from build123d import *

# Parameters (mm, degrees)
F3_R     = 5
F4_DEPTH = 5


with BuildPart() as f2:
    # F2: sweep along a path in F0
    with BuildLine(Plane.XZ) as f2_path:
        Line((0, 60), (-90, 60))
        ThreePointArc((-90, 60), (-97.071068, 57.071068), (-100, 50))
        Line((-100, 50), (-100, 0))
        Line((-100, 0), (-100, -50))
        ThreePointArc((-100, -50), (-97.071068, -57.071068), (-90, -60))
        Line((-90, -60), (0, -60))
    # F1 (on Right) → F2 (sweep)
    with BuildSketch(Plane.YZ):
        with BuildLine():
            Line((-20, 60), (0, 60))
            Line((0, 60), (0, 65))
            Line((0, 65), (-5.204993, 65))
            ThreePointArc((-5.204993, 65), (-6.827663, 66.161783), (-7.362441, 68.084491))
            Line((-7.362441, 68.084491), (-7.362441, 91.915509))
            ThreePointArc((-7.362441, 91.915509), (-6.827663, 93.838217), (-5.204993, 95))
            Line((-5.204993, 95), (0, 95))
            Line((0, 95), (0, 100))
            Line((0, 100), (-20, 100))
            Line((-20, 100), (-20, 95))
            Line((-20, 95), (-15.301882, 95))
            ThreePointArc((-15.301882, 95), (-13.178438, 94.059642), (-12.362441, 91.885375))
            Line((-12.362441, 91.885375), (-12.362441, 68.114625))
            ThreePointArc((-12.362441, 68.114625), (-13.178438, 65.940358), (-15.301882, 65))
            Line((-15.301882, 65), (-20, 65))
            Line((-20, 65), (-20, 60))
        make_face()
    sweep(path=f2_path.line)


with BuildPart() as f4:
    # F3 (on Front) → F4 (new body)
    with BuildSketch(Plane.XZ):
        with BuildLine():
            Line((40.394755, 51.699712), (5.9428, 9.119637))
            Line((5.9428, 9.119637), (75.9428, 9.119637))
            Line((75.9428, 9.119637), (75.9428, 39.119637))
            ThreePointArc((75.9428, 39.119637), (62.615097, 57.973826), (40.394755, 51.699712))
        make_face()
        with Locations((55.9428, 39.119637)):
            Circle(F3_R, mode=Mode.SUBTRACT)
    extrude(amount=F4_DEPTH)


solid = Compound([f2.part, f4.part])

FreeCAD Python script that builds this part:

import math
import FreeCAD as App
import Part
import Sketcher
from FreeCAD import Vector

doc = App.newDocument("Part")
params = doc.addObject("Spreadsheet::Sheet", "Params")
for row, (alias, value) in enumerate([
    ("sketch1_radius", "3.000002 mm"),
    ("sketch1_radius2", "3.000002 mm"),
    ("sketch1_radius3", "3.000001 mm"),
    ("sketch1_radius4", "3.000001 mm"),
    ("sketch1_width", "20 mm"),
    ("sketch2_radius", "9.999999 mm"),
    ("sketch2_width", "90 mm"),
    ("sketch2_height", "100 mm"),
    ("sketch3_diameter", "10 mm"),
    ("sketch3_radius", "20 mm"),
    ("sketch3_width", "70 mm"),
    ("sketch3_height", "30 mm"),
    ("pad1_length", "5 mm"),
], start=1):
    params.set(f"A{row}", alias)
    params.set(f"B{row}", "=" + value)
    params.setAlias(f"B{row}", alias)

body = doc.addObject("PartDesign::Body", "Body")

# Sketch on YZ plane
sketch1 = body.newObject("Sketcher::SketchObject", "Sketch")
sketch1.AttachmentSupport = (doc.getObject("YZ_Plane"), [""])
sketch1.MapMode = "FlatFace"
sketch1.addGeometry([
    Part.LineSegment(Vector(-20, 60, 0), Vector(0, 60, 0)),  # 0
    Part.LineSegment(Vector(0, 60, 0), Vector(0, 65, 0)),  # 1
    Part.LineSegment(Vector(0, 65, 0), Vector(-5.204993, 65, 0)),  # 2
    Part.ArcOfCircle(Part.Circle(Vector(-4.369331, 67.881263, 0), Vector(0, 0, 1), 3.000002), math.radians(176.115667), math.radians(253.826083)),  # 3
    Part.LineSegment(Vector(-7.362441, 68.084491, 0), Vector(-7.362441, 91.915509, 0)),  # 4
    Part.ArcOfCircle(Part.Circle(Vector(-4.369331, 92.118737, 0), Vector(0, 0, 1), 3.000002), math.radians(106.173917), math.radians(183.884333)),  # 5
    Part.LineSegment(Vector(-5.204993, 95, 0), Vector(0, 95, 0)),  # 6
    Part.LineSegment(Vector(0, 95, 0), Vector(0, 100, 0)),  # 7
    Part.LineSegment(Vector(0, 100, 0), Vector(-20, 100, 0)),  # 8
    Part.LineSegment(Vector(-20, 100, 0), Vector(-20, 95, 0)),  # 9
    Part.LineSegment(Vector(-20, 95, 0), Vector(-15.301882, 95, 0)),  # 10
    Part.ArcOfCircle(Part.Circle(Vector(-15.360229, 92.000567, 0), Vector(0, 0, 1), 3.000001), math.radians(-2.200542), math.radians(88.885579)),  # 11
    Part.LineSegment(Vector(-12.362441, 91.885375, 0), Vector(-12.362441, 68.114625, 0)),  # 12
    Part.ArcOfCircle(Part.Circle(Vector(-15.360229, 67.999433, 0), Vector(0, 0, 1), 3.000001), math.radians(-88.885579), math.radians(2.200542)),  # 13
    Part.LineSegment(Vector(-15.301882, 65, 0), Vector(-20, 65, 0)),  # 14
    Part.LineSegment(Vector(-20, 65, 0), Vector(-20, 60, 0)),  # 15
], False)
sketch1.addConstraint([
    Sketcher.Constraint("Coincident", 0, 2, 1, 1),
    Sketcher.Constraint("Coincident", 1, 2, 2, 1),
    Sketcher.Constraint("Coincident", 2, 2, 3, 2),
    Sketcher.Constraint("Coincident", 3, 1, 4, 1),
    Sketcher.Constraint("Coincident", 4, 2, 5, 2),
    Sketcher.Constraint("Coincident", 5, 1, 6, 1),
    Sketcher.Constraint("Coincident", 6, 2, 7, 1),
    Sketcher.Constraint("Coincident", 7, 2, 8, 1),
    Sketcher.Constraint("Coincident", 8, 2, 9, 1),
    Sketcher.Constraint("Coincident", 9, 2, 10, 1),
    Sketcher.Constraint("Coincident", 10, 2, 11, 2),
    Sketcher.Constraint("Coincident", 11, 1, 12, 1),
    Sketcher.Constraint("Coincident", 12, 2, 13, 2),
    Sketcher.Constraint("Coincident", 13, 1, 14, 1),
    Sketcher.Constraint("Coincident", 14, 2, 15, 1),
    Sketcher.Constraint("Coincident", 15, 2, 0, 1),
    Sketcher.Constraint("Horizontal", 0),
    Sketcher.Constraint("Vertical", 1),
    Sketcher.Constraint("Horizontal", 2),
    Sketcher.Constraint("Vertical", 4),
    Sketcher.Constraint("Horizontal", 6),
    Sketcher.Constraint("Vertical", 7),
    Sketcher.Constraint("Horizontal", 8),
    Sketcher.Constraint("Vertical", 9),
    Sketcher.Constraint("Horizontal", 10),
    Sketcher.Constraint("Vertical", 12),
    Sketcher.Constraint("Horizontal", 14),
    Sketcher.Constraint("Vertical", 15),
    Sketcher.Constraint("PointOnObject", 0, 2, -2),
    Sketcher.Constraint("PointOnObject", 6, 2, -2),
    Sketcher.Constraint("Radius", 3, 3.000002),
    Sketcher.Constraint("Radius", 5, 3.000002),
    Sketcher.Constraint("Radius", 11, 3.000001),
    Sketcher.Constraint("Radius", 13, 3.000001),
    Sketcher.Constraint("DistanceX", 0, 1, 0, 2, 20.0),
    Sketcher.Constraint("DistanceX", 8, 2, 8, 1, 20.0),
    Sketcher.Constraint("DistanceY", 1, 1, 1, 2, 5.0),
    Sketcher.Constraint("DistanceY", 7, 1, 7, 2, 5.0),
    Sketcher.Constraint("DistanceY", 9, 2, 9, 1, 5.0),
    Sketcher.Constraint("DistanceY", 15, 2, 15, 1, 5.0),
    Sketcher.Constraint("DistanceY", -1, 1, 0, 2, 60.0),
    Sketcher.Constraint("DistanceY", -1, 1, 5, 1, 95.0),
    Sketcher.Constraint("DistanceX", 11, 1, 4, 2, 5.0),
    Sketcher.Constraint("DistanceY", 4, 1, 4, 2, 23.831018),
    Sketcher.Constraint("DistanceY", 12, 2, 12, 1, 23.77075),
    Sketcher.Constraint("DistanceX", 11, 3, 5, 3, 10.990899),
    Sketcher.Constraint("DistanceX", 11, 3, 3, 3, 10.990899),
    Sketcher.Constraint("DistanceX", 13, 3, 3, 3, 10.990899),
    Sketcher.Constraint("DistanceX", 2, 2, 2, 1, 5.204993),
    Sketcher.Constraint("DistanceX", 6, 1, 6, 2, 5.204993),
    Sketcher.Constraint("DistanceX", 10, 1, 10, 2, 4.698118),
    Sketcher.Constraint("DistanceX", 14, 2, 14, 1, 4.698118),
])
sketch1.setExpression("Constraints[30]", "Params.sketch1_radius")
sketch1.setExpression("Constraints[31]", "Params.sketch1_radius2")
sketch1.setExpression("Constraints[32]", "Params.sketch1_radius3")
sketch1.setExpression("Constraints[33]", "Params.sketch1_radius4")
sketch1.setExpression("Constraints[34]", "Params.sketch1_width")

# Sketch on XZ plane
sketch2 = body.newObject("Sketcher::SketchObject", "Sketch001")
sketch2.AttachmentSupport = (doc.getObject("XZ_Plane"), [""])
sketch2.MapMode = "FlatFace"
sketch2.addGeometry([
    Part.LineSegment(Vector(0, 60, 0), Vector(-90, 60, 0)),  # 0
    Part.ArcOfCircle(Part.Circle(Vector(-90.000001, 50.000001, 0), Vector(0, 0, 1), 9.999999), math.radians(89.999996), math.radians(180.000004)),  # 1
    Part.LineSegment(Vector(-100, 50, 0), Vector(-100, -50, 0)),  # 2
    Part.ArcOfCircle(Part.Circle(Vector(-90.000001, -50.000001, 0), Vector(0, 0, 1), 9.999999), math.radians(179.999996), math.radians(270.000004)),  # 3
    Part.LineSegment(Vector(-90, -60, 0), Vector(0, -60, 0)),  # 4
], False)
sketch2.addConstraint([
    Sketcher.Constraint("Tangent", 0, 2, 1, 1),
    Sketcher.Constraint("Tangent", 1, 2, 2, 1),
    Sketcher.Constraint("Tangent", 2, 2, 3, 1),
    Sketcher.Constraint("Tangent", 3, 2, 4, 1),
    Sketcher.Constraint("Horizontal", 0),
    Sketcher.Constraint("Vertical", 2),
    Sketcher.Constraint("Horizontal", 4),
    Sketcher.Constraint("Equal", 1, 3),
    Sketcher.Constraint("Symmetric", 0, 1, 4, 2, -1, 1),
    Sketcher.Constraint("PointOnObject", 0, 1, -2),
    Sketcher.Constraint("Radius", 1, 9.999999),
    Sketcher.Constraint("DistanceX", 0, 2, 0, 1, 90.0),
    Sketcher.Constraint("DistanceY", 2, 2, 2, 1, 100.0),
])
sketch2.setExpression("Constraints[10]", "Params.sketch2_radius")
sketch2.setExpression("Constraints[11]", "Params.sketch2_width")
sketch2.setExpression("Constraints[12]", "Params.sketch2_height")
doc.recompute()

additivepipe = body.newObject("PartDesign::AdditivePipe", "AdditivePipe")
additivepipe.Profile = sketch1
additivepipe.Spine = (sketch2, ["Edge1", "Edge2", "Edge3", "Edge4", "Edge5"])
body2 = doc.addObject("PartDesign::Body", "Body001")

# Sketch on XZ plane
sketch3 = body2.newObject("Sketcher::SketchObject", "Sketch002")
sketch3.AttachmentSupport = (doc.getObject("XZ_Plane001"), [""])
sketch3.MapMode = "FlatFace"
sketch3.addGeometry([
    Part.LineSegment(Vector(40.394755, 51.699712, 0), Vector(5.9428, 9.119637, 0)),  # 0
    Part.LineSegment(Vector(5.9428, 9.119637, 0), Vector(75.9428, 9.119637, 0)),  # 1
    Part.LineSegment(Vector(75.9428, 9.119637, 0), Vector(75.9428, 39.119637, 0)),  # 2
    Part.ArcOfCircle(Part.Circle(Vector(55.9428, 39.119637, 0), Vector(0, 0, 1), 20), math.radians(0.000001), math.radians(141.02334)),  # 3
    Part.Circle(Vector(55.9428, 39.119637, 0), Vector(0, 0, 1), 5),  # 4
], False)
sketch3.addConstraint([
    Sketcher.Constraint("Coincident", 0, 2, 1, 1),
    Sketcher.Constraint("Coincident", 1, 2, 2, 1),
    Sketcher.Constraint("Tangent", 2, 2, 3, 1),
    Sketcher.Constraint("Tangent", 3, 2, 0, 1),
    Sketcher.Constraint("Horizontal", 1),
    Sketcher.Constraint("Vertical", 2),
    Sketcher.Constraint("Coincident", 4, 3, 3, 3),
    Sketcher.Constraint("Diameter", 4, 10.0),
    Sketcher.Constraint("Radius", 3, 20.0),
    Sketcher.Constraint("DistanceX", 1, 1, 1, 2, 70.0),
    Sketcher.Constraint("DistanceY", 2, 1, 2, 2, 30.0),
    Sketcher.Constraint("DistanceX", -1, 1, 3, 3, 55.9428),
    Sketcher.Constraint("DistanceY", -1, 1, 3, 2, 51.699712),
])
sketch3.setExpression("Constraints[7]", "Params.sketch3_diameter")
sketch3.setExpression("Constraints[8]", "Params.sketch3_radius")
sketch3.setExpression("Constraints[9]", "Params.sketch3_width")
sketch3.setExpression("Constraints[10]", "Params.sketch3_height")
pad1 = body2.newObject("PartDesign::Pad", "Pad")
pad1.Profile = sketch3
pad1.setExpression("Length", "Params.pad1_length")

doc.recompute()
